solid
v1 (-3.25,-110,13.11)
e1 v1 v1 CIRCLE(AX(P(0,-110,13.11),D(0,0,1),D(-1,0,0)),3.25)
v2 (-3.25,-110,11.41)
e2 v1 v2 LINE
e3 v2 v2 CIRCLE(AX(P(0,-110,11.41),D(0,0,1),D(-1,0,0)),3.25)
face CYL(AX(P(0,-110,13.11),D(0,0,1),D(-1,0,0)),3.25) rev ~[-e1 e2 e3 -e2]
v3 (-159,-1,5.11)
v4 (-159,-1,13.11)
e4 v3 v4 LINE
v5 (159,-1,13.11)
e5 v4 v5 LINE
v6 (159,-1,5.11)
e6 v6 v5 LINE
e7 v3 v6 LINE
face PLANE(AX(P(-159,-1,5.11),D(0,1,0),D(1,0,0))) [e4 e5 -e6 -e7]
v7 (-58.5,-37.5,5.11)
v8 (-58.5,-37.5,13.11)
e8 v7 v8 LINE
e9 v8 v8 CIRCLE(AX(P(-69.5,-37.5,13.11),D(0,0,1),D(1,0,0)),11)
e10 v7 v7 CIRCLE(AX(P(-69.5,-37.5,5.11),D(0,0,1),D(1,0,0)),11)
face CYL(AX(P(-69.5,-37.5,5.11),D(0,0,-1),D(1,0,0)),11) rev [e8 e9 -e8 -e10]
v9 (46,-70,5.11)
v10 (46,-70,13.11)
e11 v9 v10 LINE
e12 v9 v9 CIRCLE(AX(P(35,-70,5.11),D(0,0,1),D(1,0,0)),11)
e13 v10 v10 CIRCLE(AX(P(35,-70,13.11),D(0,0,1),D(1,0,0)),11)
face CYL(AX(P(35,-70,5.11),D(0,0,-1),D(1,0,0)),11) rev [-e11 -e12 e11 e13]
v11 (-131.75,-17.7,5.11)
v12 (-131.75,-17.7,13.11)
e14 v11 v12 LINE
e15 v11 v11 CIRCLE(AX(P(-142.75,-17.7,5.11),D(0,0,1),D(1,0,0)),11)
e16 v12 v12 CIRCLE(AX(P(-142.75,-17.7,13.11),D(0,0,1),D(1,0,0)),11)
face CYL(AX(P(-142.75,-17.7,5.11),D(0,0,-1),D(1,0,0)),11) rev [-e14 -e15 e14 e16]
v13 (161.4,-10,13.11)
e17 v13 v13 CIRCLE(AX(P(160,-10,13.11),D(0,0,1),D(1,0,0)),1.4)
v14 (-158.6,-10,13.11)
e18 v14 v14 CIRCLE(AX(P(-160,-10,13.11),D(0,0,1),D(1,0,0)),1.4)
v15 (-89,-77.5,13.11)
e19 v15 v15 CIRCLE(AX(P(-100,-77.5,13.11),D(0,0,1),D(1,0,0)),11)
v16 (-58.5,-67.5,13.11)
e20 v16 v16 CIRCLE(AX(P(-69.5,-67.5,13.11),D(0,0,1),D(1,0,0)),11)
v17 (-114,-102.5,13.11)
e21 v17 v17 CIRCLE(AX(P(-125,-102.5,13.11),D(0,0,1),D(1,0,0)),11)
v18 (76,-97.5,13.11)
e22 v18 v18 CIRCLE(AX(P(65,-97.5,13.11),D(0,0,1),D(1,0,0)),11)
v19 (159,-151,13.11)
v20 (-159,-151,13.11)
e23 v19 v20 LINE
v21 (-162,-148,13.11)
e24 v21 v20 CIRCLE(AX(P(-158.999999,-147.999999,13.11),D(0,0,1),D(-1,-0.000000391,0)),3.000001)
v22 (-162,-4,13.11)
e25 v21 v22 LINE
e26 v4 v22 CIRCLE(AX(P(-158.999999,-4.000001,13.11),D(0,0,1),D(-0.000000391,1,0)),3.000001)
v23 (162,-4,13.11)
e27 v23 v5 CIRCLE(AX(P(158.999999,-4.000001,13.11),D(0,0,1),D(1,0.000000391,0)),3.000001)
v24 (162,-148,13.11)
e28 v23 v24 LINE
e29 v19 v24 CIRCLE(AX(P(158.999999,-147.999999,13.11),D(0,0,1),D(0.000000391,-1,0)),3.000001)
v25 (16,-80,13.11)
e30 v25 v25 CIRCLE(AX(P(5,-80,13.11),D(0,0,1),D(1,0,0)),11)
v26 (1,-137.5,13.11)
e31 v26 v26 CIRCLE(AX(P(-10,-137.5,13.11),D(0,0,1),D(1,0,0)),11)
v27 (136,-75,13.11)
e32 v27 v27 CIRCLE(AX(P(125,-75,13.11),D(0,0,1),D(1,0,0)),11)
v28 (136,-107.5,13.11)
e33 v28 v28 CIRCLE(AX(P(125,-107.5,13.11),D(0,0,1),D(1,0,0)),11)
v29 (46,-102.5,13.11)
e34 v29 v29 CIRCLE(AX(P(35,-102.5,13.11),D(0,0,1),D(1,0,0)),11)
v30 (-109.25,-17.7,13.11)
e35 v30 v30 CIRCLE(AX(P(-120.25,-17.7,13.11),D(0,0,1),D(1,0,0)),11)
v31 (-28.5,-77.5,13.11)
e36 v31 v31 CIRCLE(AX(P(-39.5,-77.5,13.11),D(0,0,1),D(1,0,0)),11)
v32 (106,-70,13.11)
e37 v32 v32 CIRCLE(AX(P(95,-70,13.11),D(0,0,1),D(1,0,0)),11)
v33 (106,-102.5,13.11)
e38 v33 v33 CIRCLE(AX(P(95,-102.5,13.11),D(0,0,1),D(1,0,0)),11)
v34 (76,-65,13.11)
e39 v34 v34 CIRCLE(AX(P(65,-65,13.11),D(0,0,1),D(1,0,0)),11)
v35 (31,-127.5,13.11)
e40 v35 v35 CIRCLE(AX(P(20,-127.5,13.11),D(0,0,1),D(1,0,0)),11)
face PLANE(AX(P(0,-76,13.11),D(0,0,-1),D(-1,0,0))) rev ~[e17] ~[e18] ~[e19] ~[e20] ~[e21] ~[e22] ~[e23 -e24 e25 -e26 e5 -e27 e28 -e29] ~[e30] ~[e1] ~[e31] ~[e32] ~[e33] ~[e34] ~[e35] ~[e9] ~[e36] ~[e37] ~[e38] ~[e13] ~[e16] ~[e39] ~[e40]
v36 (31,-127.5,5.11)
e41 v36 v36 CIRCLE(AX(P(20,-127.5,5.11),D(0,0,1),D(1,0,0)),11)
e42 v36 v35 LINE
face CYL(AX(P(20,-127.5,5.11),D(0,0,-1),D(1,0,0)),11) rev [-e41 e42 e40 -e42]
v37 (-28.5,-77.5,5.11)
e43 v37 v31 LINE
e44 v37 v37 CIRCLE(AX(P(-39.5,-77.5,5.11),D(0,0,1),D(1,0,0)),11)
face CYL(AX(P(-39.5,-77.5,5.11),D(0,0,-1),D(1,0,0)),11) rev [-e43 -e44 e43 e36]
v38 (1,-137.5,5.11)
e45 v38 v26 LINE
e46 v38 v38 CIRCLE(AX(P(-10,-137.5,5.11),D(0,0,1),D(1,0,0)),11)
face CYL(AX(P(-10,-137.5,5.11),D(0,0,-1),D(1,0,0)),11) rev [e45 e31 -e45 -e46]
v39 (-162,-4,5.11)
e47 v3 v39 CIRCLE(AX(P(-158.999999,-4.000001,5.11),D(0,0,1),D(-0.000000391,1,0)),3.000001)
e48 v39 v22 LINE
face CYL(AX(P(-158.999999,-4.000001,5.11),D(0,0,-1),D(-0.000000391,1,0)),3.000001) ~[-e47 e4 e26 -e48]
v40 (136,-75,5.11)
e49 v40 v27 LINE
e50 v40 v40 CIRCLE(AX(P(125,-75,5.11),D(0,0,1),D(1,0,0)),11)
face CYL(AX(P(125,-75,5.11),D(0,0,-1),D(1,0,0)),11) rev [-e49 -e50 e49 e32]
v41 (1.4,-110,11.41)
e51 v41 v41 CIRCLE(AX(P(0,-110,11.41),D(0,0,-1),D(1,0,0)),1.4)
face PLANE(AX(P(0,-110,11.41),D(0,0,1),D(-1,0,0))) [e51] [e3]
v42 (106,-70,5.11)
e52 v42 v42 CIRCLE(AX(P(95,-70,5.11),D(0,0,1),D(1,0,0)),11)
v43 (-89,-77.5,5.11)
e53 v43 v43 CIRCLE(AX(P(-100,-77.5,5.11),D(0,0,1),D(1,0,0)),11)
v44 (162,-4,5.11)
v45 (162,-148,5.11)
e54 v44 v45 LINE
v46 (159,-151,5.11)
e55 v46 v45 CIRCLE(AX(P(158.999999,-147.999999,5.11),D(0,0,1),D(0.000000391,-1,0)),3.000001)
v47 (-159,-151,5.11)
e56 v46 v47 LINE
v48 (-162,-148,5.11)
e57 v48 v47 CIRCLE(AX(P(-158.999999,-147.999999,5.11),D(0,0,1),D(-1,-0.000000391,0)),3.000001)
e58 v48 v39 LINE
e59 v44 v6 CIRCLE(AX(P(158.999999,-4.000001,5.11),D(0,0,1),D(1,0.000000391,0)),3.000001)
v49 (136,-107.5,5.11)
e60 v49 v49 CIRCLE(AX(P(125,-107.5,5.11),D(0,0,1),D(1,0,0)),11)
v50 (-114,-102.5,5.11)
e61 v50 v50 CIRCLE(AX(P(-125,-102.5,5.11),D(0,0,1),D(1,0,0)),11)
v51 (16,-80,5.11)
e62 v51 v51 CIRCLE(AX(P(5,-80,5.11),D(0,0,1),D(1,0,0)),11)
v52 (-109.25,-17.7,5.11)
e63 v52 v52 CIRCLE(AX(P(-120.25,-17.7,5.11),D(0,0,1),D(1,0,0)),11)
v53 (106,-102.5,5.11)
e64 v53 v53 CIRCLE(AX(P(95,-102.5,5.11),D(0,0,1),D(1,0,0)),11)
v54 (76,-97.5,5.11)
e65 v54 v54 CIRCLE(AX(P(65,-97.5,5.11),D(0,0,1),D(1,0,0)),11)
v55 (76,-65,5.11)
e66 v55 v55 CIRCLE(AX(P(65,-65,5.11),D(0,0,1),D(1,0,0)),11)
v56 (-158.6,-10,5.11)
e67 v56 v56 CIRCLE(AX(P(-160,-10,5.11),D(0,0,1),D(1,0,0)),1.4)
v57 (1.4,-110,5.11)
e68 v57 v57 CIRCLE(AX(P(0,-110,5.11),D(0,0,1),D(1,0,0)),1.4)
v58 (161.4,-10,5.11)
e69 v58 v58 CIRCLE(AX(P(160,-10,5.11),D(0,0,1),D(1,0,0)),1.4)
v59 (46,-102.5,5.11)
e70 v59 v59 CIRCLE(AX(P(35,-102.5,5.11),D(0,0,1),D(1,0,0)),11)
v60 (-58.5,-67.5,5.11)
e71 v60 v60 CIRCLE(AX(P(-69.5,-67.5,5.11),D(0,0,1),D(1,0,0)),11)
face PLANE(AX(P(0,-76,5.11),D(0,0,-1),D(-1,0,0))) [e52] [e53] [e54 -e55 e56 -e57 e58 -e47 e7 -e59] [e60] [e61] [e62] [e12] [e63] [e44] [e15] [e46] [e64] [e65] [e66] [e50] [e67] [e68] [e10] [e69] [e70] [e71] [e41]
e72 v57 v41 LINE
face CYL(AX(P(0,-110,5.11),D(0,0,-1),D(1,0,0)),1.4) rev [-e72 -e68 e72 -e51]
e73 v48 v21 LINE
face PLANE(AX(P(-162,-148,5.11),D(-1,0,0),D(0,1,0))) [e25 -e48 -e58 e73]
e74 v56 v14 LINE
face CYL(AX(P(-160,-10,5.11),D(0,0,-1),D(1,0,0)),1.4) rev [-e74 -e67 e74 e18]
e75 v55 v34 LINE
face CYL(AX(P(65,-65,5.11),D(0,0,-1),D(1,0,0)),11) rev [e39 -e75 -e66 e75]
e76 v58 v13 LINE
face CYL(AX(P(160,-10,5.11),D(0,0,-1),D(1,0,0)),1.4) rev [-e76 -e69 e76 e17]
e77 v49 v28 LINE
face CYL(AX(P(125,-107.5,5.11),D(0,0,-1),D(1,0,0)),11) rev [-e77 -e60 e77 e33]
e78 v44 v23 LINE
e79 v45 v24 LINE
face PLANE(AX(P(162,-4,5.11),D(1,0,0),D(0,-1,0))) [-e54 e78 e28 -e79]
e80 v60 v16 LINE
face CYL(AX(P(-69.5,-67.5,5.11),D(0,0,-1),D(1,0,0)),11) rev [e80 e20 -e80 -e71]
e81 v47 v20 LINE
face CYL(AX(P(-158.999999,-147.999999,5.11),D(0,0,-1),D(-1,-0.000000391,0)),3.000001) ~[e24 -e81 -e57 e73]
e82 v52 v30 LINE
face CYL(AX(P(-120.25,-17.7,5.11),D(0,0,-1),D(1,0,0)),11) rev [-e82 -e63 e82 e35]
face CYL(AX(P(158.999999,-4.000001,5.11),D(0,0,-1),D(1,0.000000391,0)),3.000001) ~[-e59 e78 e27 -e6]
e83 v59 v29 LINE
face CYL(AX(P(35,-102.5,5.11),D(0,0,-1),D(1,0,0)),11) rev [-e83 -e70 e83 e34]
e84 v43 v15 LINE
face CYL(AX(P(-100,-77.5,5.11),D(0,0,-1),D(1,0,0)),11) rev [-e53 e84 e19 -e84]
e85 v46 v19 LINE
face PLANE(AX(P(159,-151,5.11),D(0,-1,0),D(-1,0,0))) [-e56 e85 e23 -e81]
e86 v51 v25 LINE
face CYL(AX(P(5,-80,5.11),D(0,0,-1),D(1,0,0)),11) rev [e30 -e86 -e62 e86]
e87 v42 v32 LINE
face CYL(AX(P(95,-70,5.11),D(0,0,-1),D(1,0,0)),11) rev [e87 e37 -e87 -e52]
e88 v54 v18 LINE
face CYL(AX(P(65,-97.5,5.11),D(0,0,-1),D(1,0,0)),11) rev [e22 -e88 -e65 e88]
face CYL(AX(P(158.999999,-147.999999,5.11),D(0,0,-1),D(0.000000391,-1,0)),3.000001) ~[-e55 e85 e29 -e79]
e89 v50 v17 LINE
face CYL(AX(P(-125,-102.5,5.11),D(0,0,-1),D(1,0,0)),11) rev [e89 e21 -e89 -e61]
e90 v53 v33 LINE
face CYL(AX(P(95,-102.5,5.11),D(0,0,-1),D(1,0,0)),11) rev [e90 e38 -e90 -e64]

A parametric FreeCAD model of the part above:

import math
import FreeCAD as App
import Part
import Sketcher
Q = App.Units.Quantity

doc = App.newDocument("Part")
body = doc.addObject("PartDesign::Body", "Body")

# Sketch on XY plane
sketch1 = doc.addObject("Sketcher::SketchObject", "Sketch")
body.addObject(sketch1)
sketch1.AttachmentSupport = (doc.XY_Plane, [""])
sketch1.MapMode = "FlatFace"
sketch1.addGeometry([
    Part.LineSegment(App.Vector(159, -1, 0), App.Vector(-159, -1, 0)),  # 0
    Part.ArcOfCircle(Part.Circle(App.Vector(-159, -4, 0), App.Vector(0, 0, 1), 3), math.radians(90), math.radians(180)),  # 1
    Part.LineSegment(App.Vector(-162, -4, 0), App.Vector(-162, -148, 0)),  # 2
    Part.ArcOfCircle(Part.Circle(App.Vector(-159, -148, 0), App.Vector(0, 0, 1), 3), math.radians(-180), math.radians(-90)),  # 3
    Part.LineSegment(App.Vector(-159, -151, 0), App.Vector(159, -151, 0)),  # 4
    Part.ArcOfCircle(Part.Circle(App.Vector(159, -148, 0), App.Vector(0, 0, 1), 3), math.radians(-90), math.radians(0)),  # 5
    Part.LineSegment(App.Vector(162, -148, 0), App.Vector(162, -4, 0)),  # 6
    Part.ArcOfCircle(Part.Circle(App.Vector(159, -4, 0), App.Vector(0, 0, 1), 3), math.radians(0), math.radians(90)),  # 7
], False)
sketch1.addConstraint([
    Sketcher.Constraint("Tangent", 0, 2, 1, 1),
    Sketcher.Constraint("Tangent", 1, 2, 2, 1),
    Sketcher.Constraint("Tangent", 2, 2, 3, 1),
    Sketcher.Constraint("Tangent", 3, 2, 4, 1),
    Sketcher.Constraint("Tangent", 4, 2, 5, 1),
    Sketcher.Constraint("Tangent", 5, 2, 6, 1),
    Sketcher.Constraint("Tangent", 6, 2, 7, 1),
    Sketcher.Constraint("Tangent", 7, 2, 0, 1),
    Sketcher.Constraint("Horizontal", 0),
    Sketcher.Constraint("Vertical", 2),
    Sketcher.Constraint("Horizontal", 4),
    Sketcher.Constraint("Vertical", 6),
    Sketcher.Constraint("Equal", 1, 3),
    Sketcher.Constraint("Equal", 3, 5),
    Sketcher.Constraint("Equal", 5, 7),
    Sketcher.Constraint("Radius", 1, Q("3.000001 mm")),
    Sketcher.Constraint("DistanceX", 0, 2, 0, 1, Q("318 mm")),
    Sketcher.Constraint("DistanceY", 2, 2, 2, 1, Q("144 mm")),
    Sketcher.Constraint("DistanceX", 1, 3, -1, 1, Q("158.999999 mm")),
    Sketcher.Constraint("DistanceY", 1, 3, -1, 1, Q("4.000001 mm")),
])
pad1 = doc.addObject("PartDesign::Pad", "Pad")
body.addObject(pad1)
pad1.Profile = sketch1
pad1.Length = 8

# Sketch on XY plane
sketch2 = doc.addObject("Sketcher::SketchObject", "Sketch001")
body.addObject(sketch2)
sketch2.AttachmentSupport = (doc.XY_Plane, [""])
sketch2.MapMode = "FlatFace"
sketch2.addGeometry([
    Part.Circle(App.Vector(-143, -18, 0), App.Vector(0, 0, 1), 11),  # 0
    Part.Circle(App.Vector(-120, -18, 0), App.Vector(0, 0, 1), 11),  # 1
    Part.Circle(App.Vector(-70, -38, 0), App.Vector(0, 0, 1), 11),  # 2
    Part.Circle(App.Vector(-70, -68, 0), App.Vector(0, 0, 1), 11),  # 3
    Part.Circle(App.Vector(-100, -78, 0), App.Vector(0, 0, 1), 11),  # 4
    Part.Circle(App.Vector(-125, -102, 0), App.Vector(0, 0, 1), 11),  # 5
    Part.Circle(App.Vector(-40, -78, 0), App.Vector(0, 0, 1), 11),  # 6
    Part.Circle(App.Vector(5, -80, 0), App.Vector(0, 0, 1), 11),  # 7
    Part.Circle(App.Vector(35, -70, 0), App.Vector(0, 0, 1), 11),  # 8
    Part.Circle(App.Vector(65, -65, 0), App.Vector(0, 0, 1), 11),  # 9
    Part.Circle(App.Vector(95, -70, 0), App.Vector(0, 0, 1), 11),  # 10
    Part.Circle(App.Vector(125, -75, 0), App.Vector(0, 0, 1), 11),  # 11
    Part.Circle(App.Vector(-10, -138, 0), App.Vector(0, 0, 1), 11),  # 12
    Part.Circle(App.Vector(20, -128, 0), App.Vector(0, 0, 1), 11),  # 13
    Part.Circle(App.Vector(35, -102, 0), App.Vector(0, 0, 1), 11),  # 14
    Part.Circle(App.Vector(65, -98, 0), App.Vector(0, 0, 1), 11),  # 15
    Part.Circle(App.Vector(95, -102, 0), App.Vector(0, 0, 1), 11),  # 16
    Part.Circle(App.Vector(125, -108, 0), App.Vector(0, 0, 1), 11),  # 17
], False)
sketch2.addConstraint([
    Sketcher.Constraint("Equal", 0, 1),
    Sketcher.Constraint("Equal", 1, 2),
    Sketcher.Constraint("Equal", 2, 3),
    Sketcher.Constraint("Equal", 3, 4),
    Sketcher.Constraint("Equal", 4, 5),
    Sketcher.Constraint("Equal", 5, 6),
    Sketcher.Constraint("Equal", 6, 7),
    Sketcher.Constraint("Equal", 7, 8),
    Sketcher.Constraint("Equal", 8, 9),
    Sketcher.Constraint("Equal", 9, 10),
    Sketcher.Constraint("Equal", 10, 11),
    Sketcher.Constraint("Equal", 11, 12),
    Sketcher.Constraint("Equal", 12, 13),
    Sketcher.Constraint("Equal", 13, 14),
    Sketcher.Constraint("Equal", 14, 15),
    Sketcher.Constraint("Equal", 15, 16),
    Sketcher.Constraint("Equal", 16, 17),
    Sketcher.Constraint("Horizontal", 0, 3, 1, 3),
    Sketcher.Constraint("Horizontal", 4, 3, 6, 3),
    Sketcher.Constraint("Horizontal", 8, 3, 10, 3),
    Sketcher.Constraint("Horizontal", 5, 3, 14, 3),
    Sketcher.Constraint("Horizontal", 14, 3, 16, 3),
    Sketcher.Constraint("Vertical", 2, 3, 3, 3),
    Sketcher.Constraint("Vertical", 8, 3, 14, 3),
    Sketcher.Constraint("Vertical", 9, 3, 15, 3),
    Sketcher.Constraint("Vertical", 10, 3, 16, 3),
    Sketcher.Constraint("Vertical", 11, 3, 17, 3),
    Sketcher.Constraint("Diameter", 0, Q("22 mm")),
    Sketcher.Constraint("DistanceX", 4, 3, -1, 1, Q("100 mm")),
    Sketcher.Constraint("DistanceX", 5, 3, -1, 1, Q("125 mm")),
    Sketcher.Constraint("DistanceX", -1, 1, 7, 3, Q("5 mm")),
    Sketcher.Constraint("DistanceY", 7, 3, -1, 1, Q("80 mm")),
    Sketcher.Constraint("DistanceX", -1, 1, 8, 3, Q("35 mm")),
    Sketcher.Constraint("DistanceY", 8, 3, -1, 1, Q("70 mm")),
    Sketcher.Constraint("DistanceX", -1, 1, 9, 3, Q("65 mm")),
    Sketcher.Constraint("DistanceY", 9, 3, -1, 1, Q("65 mm")),
    Sketcher.Constraint("DistanceX", -1, 1, 10, 3, Q("95 mm")),
    Sketcher.Constraint("DistanceX", -1, 1, 11, 3, Q("125 mm")),
    Sketcher.Constraint("DistanceY", 11, 3, -1, 1, Q("75 mm")),
    Sketcher.Constraint("DistanceX", 12, 3, -1, 1, Q("10 mm")),
    Sketcher.Constraint("DistanceX", -1, 1, 13, 3, Q("20 mm")),
    Sketcher.Constraint("DistanceY", 3, 3, 2, 3, Q("30 mm")),
    Sketcher.Constraint("DistanceY", 4, 3, 3, 3, Q("10 mm")),
    Sketcher.Constraint("DistanceY", 5, 3, 4, 3, Q("25 mm")),
    Sketcher.Constraint("DistanceX", 3, 3, 6, 3, Q("30 mm")),
    Sketcher.Constraint("DistanceY", 12, 3, 6, 3, Q("60 mm")),
    Sketcher.Constraint("DistanceY", 12, 3, 13, 3, Q("10 mm")),
    Sketcher.Constraint("DistanceY", 14, 3, 15, 3, Q("5 mm")),
    Sketcher.Constraint("DistanceY", 17, 3, 16, 3, Q("5 mm")),
    Sketcher.Constraint("DistanceY", 0, 3, -1, 1, Q("17.7 mm")),
    Sketcher.Constraint("DistanceX", 2, 3, -1, 1, Q("69.5 mm")),
    Sketcher.Constraint("DistanceY", 2, 3, -1, 1, Q("37.5 mm")),
    Sketcher.Constraint("DistanceX", 0, 3, 1, 3, Q("22.5 mm")),
    Sketcher.Constraint("DistanceX", 0, 3, -1, 1, Q("142.75 mm")),
])
pocket1 = doc.addObject("PartDesign::Pocket", "Pocket")
body.addObject(pocket1)
pocket1.Profile = sketch2
pocket1.Length = 8
pocket1.Reversed = True

# Sketch on XY plane
sketch3 = doc.addObject("Sketcher::SketchObject", "Sketch002")
body.addObject(sketch3)
sketch3.AttachmentSupport = (doc.XY_Plane, [""])
sketch3.MapMode = "FlatFace"
sketch3.addGeometry([
    Part.Circle(App.Vector(0, -210, 0), App.Vector(0, 0, 1), 1.4),  # 0
    Part.Circle(App.Vector(160, -210, 0), App.Vector(0, 0, 1), 1.4),  # 1
    Part.Circle(App.Vector(160, -10, 0), App.Vector(0, 0, 1), 1.4),  # 2
    Part.Circle(App.Vector(-160, -210, 0), App.Vector(0, 0, 1), 1.4),  # 3
    Part.Circle(App.Vector(-160, -10, 0), App.Vector(0, 0, 1), 1.4),  # 4
    Part.Circle(App.Vector(0, -110, 0), App.Vector(0, 0, 1), 1.4),  # 5
], False)
sketch3.addConstraint([
    Sketcher.Constraint("Equal", 0, 1),
    Sketcher.Constraint("Equal", 1, 2),
    Sketcher.Constraint("Equal", 2, 3),
    Sketcher.Constraint("Equal", 3, 4),
    Sketcher.Constraint("Equal", 4, 5),
    Sketcher.Constraint("Symmetric", 1, 3, 3, 3, -2),
    Sketcher.Constraint("Symmetric", 2, 3, 4, 3, -2),
    Sketcher.Constraint("PointOnObject", 0, 3, -2),
    Sketcher.Constraint("PointOnObject", 5, 3, -2),
    Sketcher.Constraint("Horizontal", 0, 3, 1, 3),
    Sketcher.Constraint("Vertical", 1, 3, 2, 3),
    Sketcher.Constraint("Diameter", 0, Q("2.8 mm")),
    Sketcher.Constraint("DistanceY", 0, 3, -1, 1, Q("210 mm")),
    Sketcher.Constraint("DistanceX", -1, 1, 1, 3, Q("160 mm")),
    Sketcher.Constraint("DistanceY", 2, 3, -1, 1, Q("10 mm")),
    Sketcher.Constraint("DistanceY", 5, 3, -1, 1, Q("110 mm")),
])
pocket2 = doc.addObject("PartDesign::Pocket", "Pocket001")
body.addObject(pocket2)
pocket2.Profile = sketch3
pocket2.Length = 8
pocket2.Reversed = True

# Sketch on XY plane
sketch4 = doc.addObject("Sketcher::SketchObject", "Sketch003")
body.addObject(sketch4)
sketch4.AttachmentSupport = (doc.XY_Plane, [""])
sketch4.MapMode = "FlatFace"
sketch4.AttachmentOffset = App.Placement(App.Vector(0, 0, 8), App.Rotation())
sketch4.addGeometry(Part.Circle(App.Vector(0, -110, 0), App.Vector(0, 0, 1), 3.2), False)
sketch4.addConstraint([
    Sketcher.Constraint("PointOnObject", 0, 3, -2),
    Sketcher.Constraint("Diameter", 0, Q("6.5 mm")),
    Sketcher.Constraint("DistanceY", 0, 3, -1, 1, Q("110 mm")),
])
pocket3 = doc.addObject("PartDesign::Pocket", "Pocket002")
body.addObject(pocket3)
pocket3.Profile = sketch4
pocket3.Length = 1.7
body2 = doc.addObject("PartDesign::Body", "Body001")
doc.recompute()

body.Placement = App.Placement(App.Vector(0, 0, 5.11), App.Rotation(App.Vector(0, 0, 1), 0))
boolean = doc.addObject("PartDesign::Boolean", "Boolean")
body2.addObject(boolean)
boolean.Type = "Fuse"
boolean.addObjects([body])

doc.recompute()
